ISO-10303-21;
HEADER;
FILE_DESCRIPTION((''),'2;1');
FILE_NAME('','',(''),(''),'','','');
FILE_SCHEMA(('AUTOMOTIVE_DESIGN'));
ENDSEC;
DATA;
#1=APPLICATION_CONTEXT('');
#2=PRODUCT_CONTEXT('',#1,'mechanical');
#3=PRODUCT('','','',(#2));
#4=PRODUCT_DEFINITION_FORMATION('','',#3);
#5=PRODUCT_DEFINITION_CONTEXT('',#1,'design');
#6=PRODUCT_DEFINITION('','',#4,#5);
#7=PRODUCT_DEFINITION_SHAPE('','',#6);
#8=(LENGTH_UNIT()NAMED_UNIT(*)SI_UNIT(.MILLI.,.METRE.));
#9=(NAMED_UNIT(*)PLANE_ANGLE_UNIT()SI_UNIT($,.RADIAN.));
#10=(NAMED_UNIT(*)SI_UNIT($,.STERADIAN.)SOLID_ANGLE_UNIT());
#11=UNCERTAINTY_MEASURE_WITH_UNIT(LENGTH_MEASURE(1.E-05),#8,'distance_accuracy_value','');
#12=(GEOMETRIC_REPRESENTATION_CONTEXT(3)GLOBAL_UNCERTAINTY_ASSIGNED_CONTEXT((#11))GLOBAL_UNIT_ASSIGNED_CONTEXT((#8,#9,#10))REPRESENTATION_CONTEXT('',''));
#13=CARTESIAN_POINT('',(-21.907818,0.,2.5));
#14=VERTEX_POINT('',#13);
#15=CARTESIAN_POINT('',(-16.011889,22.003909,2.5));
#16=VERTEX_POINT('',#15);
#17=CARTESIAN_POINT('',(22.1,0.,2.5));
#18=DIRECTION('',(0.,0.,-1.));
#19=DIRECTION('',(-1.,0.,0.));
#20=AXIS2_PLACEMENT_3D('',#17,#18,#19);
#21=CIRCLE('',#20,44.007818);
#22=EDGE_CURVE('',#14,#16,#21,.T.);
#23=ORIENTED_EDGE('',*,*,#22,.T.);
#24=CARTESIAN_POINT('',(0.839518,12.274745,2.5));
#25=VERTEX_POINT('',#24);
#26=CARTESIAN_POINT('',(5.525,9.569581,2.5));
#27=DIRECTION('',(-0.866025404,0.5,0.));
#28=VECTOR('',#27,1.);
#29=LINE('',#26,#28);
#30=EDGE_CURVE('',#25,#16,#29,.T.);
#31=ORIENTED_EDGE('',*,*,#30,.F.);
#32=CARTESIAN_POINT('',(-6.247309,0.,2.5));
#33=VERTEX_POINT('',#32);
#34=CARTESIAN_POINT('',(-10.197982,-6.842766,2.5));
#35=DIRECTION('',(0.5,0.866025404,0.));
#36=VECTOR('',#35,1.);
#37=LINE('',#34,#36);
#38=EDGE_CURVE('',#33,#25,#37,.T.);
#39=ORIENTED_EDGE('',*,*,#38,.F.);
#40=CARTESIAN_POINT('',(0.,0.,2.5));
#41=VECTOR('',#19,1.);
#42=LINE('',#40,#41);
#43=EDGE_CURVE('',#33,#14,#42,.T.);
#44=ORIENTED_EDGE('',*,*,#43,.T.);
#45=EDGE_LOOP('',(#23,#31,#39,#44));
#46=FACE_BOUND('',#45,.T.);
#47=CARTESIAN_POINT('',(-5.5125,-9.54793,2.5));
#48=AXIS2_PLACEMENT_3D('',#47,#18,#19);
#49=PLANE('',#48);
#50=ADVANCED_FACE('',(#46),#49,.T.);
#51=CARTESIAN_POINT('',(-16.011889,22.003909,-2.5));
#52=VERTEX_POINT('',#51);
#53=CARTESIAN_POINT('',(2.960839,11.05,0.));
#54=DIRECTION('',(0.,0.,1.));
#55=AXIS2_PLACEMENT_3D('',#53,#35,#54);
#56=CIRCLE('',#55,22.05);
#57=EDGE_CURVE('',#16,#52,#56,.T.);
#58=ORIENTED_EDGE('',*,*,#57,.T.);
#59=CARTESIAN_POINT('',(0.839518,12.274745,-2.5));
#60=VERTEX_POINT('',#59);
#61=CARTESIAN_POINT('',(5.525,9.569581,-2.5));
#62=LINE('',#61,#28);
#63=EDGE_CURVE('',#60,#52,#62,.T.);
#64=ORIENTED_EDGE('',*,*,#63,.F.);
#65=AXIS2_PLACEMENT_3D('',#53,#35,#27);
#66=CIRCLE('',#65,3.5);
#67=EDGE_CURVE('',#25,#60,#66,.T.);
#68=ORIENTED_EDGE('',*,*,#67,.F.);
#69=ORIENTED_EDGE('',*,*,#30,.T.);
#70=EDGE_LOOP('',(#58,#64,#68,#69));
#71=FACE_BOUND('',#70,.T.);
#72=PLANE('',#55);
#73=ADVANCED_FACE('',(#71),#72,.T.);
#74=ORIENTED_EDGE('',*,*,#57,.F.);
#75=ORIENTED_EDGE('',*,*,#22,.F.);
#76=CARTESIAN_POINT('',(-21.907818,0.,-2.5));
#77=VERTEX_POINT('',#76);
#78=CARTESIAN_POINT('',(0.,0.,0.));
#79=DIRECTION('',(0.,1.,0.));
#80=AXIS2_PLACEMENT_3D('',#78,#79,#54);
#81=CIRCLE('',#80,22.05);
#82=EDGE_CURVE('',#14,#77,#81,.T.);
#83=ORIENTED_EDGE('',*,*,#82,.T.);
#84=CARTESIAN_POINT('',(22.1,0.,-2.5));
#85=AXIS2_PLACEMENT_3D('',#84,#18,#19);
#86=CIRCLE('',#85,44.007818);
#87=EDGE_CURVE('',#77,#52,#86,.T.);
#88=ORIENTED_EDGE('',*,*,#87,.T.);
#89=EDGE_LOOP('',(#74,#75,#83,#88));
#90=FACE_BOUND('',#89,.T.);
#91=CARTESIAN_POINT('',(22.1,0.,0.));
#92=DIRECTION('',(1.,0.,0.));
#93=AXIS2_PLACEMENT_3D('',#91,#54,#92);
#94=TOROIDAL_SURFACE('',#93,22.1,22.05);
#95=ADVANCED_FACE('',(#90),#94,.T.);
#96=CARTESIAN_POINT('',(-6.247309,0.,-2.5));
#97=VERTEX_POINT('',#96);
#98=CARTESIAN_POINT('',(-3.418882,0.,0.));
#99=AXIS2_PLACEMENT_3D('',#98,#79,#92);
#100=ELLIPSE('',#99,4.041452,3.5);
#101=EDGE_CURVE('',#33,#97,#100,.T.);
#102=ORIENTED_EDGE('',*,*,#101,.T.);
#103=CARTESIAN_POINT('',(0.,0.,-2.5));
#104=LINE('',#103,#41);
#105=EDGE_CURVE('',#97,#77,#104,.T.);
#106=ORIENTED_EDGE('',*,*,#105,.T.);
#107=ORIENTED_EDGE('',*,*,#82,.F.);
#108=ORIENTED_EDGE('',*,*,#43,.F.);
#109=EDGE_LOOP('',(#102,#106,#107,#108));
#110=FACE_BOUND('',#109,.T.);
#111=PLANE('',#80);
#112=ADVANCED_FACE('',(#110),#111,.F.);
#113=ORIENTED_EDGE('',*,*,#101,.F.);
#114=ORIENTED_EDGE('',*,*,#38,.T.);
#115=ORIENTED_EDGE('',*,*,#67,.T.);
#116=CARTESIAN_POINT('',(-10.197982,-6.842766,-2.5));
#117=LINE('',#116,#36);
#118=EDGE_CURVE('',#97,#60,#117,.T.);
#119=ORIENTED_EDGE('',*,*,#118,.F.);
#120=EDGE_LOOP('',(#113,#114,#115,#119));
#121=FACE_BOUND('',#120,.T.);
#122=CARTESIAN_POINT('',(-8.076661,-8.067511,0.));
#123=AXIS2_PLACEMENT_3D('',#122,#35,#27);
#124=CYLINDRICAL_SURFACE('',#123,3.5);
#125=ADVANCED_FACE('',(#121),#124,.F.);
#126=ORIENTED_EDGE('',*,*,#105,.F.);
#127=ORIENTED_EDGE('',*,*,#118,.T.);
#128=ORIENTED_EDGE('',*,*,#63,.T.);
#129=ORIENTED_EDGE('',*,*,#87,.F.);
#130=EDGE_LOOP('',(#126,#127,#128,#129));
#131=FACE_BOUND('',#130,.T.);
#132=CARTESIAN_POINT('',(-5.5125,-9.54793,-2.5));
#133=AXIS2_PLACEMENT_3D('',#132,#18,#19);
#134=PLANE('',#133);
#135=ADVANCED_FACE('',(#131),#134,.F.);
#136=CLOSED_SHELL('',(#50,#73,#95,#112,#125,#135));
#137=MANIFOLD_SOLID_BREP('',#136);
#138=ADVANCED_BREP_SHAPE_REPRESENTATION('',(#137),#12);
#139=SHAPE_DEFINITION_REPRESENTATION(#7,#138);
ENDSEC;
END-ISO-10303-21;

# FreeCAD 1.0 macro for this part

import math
import FreeCAD as App
import Part
import Sketcher
from FreeCAD import Vector

doc = App.newDocument("Part")
params = doc.addObject("Spreadsheet::Sheet", "Params")
for row, (alias, value) in enumerate([
    ("sketch1_diameter", "44.1 mm"),
    ("sketch1_height", "10 mm"),
    ("revolution_angle", "30 deg"),
    ("sketch2_radius", "3.5 mm"),
    ("sketch2_height", "5 mm"),
], start=1):
    params.set(f"A{row}", alias)
    params.set(f"B{row}", "=" + value)
    params.setAlias(f"B{row}", alias)

body = doc.addObject("PartDesign::Body", "Body")

# Sketch on XZ plane
sketch1 = doc.addObject("Sketcher::SketchObject", "Sketch")
body.addObject(sketch1)
sketch1.AttachmentSupport = (doc.XZ_Plane, [""])
sketch1.MapMode = "FlatFace"
sketch1.addGeometry(Part.Circle(Vector(0, 0, 0), Vector(0, 0, 1), 22), False)
sketch1.addGeometry(Part.LineSegment(Vector(22, 0, 0), Vector(22, -10, 0)), True)  # axis
sketch1.addConstraint([
    Sketcher.Constraint("Vertical", 1),
    Sketcher.Constraint("Coincident", 0, 3, -1, 1),
    Sketcher.Constraint("PointOnObject", 1, 1, -1),
    Sketcher.Constraint("Diameter", 0, 44.1),
    Sketcher.Constraint("DistanceY", 1, 2, 1, 1, 10.0),
    Sketcher.Constraint("DistanceX", -1, 1, 1, 1, 22.1),
])
sketch1.setExpression("Constraints[3]", "Params.sketch1_diameter")
sketch1.setExpression("Constraints[4]", "Params.sketch1_height")
revolution = doc.addObject("PartDesign::Revolution", "Revolution")
body.addObject(revolution)
revolution.Profile = sketch1
revolution.ReferenceAxis = (sketch1, ["Axis0"])
revolution.setExpression("Angle", "Params.revolution_angle")

# Sketch on an angled plane
sketch2 = doc.addObject("Sketcher::SketchObject", "Sketch001")
body.addObject(sketch2)
sketch2.Placement = App.Placement(Vector(5.525, 9.569581, 0), App.Rotation(Vector(0.866025404, -0.5, 0), Vector(0, 0, -1), Vector(0.5, 0.866025404, 0), "ZXY"))
sketch2.addGeometry([
    Part.ArcOfCircle(Part.Circle(Vector(-3, 0, 0), Vector(0, 0, 1), 3.5), math.radians(-134), math.radians(134)),
    Part.LineSegment(Vector(-5.4, 2.5, 0), Vector(-33, 2.5, 0)),
    Part.LineSegment(Vector(-33, 2.5, 0), Vector(-33, -2.5, 0)),
    Part.LineSegment(Vector(-33, -2.5, 0), Vector(-5.4, -2.5, 0)),
], False)
sketch2.addConstraint([
    Sketcher.Constraint("Coincident", 0, 2, 1, 1),
    Sketcher.Constraint("Coincident", 1, 2, 2, 1),
    Sketcher.Constraint("Coincident", 2, 2, 3, 1),
    Sketcher.Constraint("Coincident", 3, 2, 0, 1),
    Sketcher.Constraint("Horizontal", 1),
    Sketcher.Constraint("Vertical", 2),
    Sketcher.Constraint("Horizontal", 3),
    Sketcher.Constraint("Symmetric", 0, 2, 3, 2, -1),
    Sketcher.Constraint("Radius", 0, 3.5),
    Sketcher.Constraint("DistanceY", 2, 2, 2, 1, 5.0),
    Sketcher.Constraint("DistanceX", 1, 2, 0, 3, 30.0),
    Sketcher.Constraint("DistanceX", 0, 3, -1, 1, 2.960839),
])
sketch2.setExpression("Constraints[8]", "Params.sketch2_radius")
sketch2.setExpression("Constraints[9]", "Params.sketch2_height")
pocket1 = doc.addObject("PartDesign::Pocket", "Pocket")
body.addObject(pocket1)
pocket1.Profile = sketch2
pocket1.Type = "ThroughAll"
pocket1.Midplane = True

doc.recompute()
